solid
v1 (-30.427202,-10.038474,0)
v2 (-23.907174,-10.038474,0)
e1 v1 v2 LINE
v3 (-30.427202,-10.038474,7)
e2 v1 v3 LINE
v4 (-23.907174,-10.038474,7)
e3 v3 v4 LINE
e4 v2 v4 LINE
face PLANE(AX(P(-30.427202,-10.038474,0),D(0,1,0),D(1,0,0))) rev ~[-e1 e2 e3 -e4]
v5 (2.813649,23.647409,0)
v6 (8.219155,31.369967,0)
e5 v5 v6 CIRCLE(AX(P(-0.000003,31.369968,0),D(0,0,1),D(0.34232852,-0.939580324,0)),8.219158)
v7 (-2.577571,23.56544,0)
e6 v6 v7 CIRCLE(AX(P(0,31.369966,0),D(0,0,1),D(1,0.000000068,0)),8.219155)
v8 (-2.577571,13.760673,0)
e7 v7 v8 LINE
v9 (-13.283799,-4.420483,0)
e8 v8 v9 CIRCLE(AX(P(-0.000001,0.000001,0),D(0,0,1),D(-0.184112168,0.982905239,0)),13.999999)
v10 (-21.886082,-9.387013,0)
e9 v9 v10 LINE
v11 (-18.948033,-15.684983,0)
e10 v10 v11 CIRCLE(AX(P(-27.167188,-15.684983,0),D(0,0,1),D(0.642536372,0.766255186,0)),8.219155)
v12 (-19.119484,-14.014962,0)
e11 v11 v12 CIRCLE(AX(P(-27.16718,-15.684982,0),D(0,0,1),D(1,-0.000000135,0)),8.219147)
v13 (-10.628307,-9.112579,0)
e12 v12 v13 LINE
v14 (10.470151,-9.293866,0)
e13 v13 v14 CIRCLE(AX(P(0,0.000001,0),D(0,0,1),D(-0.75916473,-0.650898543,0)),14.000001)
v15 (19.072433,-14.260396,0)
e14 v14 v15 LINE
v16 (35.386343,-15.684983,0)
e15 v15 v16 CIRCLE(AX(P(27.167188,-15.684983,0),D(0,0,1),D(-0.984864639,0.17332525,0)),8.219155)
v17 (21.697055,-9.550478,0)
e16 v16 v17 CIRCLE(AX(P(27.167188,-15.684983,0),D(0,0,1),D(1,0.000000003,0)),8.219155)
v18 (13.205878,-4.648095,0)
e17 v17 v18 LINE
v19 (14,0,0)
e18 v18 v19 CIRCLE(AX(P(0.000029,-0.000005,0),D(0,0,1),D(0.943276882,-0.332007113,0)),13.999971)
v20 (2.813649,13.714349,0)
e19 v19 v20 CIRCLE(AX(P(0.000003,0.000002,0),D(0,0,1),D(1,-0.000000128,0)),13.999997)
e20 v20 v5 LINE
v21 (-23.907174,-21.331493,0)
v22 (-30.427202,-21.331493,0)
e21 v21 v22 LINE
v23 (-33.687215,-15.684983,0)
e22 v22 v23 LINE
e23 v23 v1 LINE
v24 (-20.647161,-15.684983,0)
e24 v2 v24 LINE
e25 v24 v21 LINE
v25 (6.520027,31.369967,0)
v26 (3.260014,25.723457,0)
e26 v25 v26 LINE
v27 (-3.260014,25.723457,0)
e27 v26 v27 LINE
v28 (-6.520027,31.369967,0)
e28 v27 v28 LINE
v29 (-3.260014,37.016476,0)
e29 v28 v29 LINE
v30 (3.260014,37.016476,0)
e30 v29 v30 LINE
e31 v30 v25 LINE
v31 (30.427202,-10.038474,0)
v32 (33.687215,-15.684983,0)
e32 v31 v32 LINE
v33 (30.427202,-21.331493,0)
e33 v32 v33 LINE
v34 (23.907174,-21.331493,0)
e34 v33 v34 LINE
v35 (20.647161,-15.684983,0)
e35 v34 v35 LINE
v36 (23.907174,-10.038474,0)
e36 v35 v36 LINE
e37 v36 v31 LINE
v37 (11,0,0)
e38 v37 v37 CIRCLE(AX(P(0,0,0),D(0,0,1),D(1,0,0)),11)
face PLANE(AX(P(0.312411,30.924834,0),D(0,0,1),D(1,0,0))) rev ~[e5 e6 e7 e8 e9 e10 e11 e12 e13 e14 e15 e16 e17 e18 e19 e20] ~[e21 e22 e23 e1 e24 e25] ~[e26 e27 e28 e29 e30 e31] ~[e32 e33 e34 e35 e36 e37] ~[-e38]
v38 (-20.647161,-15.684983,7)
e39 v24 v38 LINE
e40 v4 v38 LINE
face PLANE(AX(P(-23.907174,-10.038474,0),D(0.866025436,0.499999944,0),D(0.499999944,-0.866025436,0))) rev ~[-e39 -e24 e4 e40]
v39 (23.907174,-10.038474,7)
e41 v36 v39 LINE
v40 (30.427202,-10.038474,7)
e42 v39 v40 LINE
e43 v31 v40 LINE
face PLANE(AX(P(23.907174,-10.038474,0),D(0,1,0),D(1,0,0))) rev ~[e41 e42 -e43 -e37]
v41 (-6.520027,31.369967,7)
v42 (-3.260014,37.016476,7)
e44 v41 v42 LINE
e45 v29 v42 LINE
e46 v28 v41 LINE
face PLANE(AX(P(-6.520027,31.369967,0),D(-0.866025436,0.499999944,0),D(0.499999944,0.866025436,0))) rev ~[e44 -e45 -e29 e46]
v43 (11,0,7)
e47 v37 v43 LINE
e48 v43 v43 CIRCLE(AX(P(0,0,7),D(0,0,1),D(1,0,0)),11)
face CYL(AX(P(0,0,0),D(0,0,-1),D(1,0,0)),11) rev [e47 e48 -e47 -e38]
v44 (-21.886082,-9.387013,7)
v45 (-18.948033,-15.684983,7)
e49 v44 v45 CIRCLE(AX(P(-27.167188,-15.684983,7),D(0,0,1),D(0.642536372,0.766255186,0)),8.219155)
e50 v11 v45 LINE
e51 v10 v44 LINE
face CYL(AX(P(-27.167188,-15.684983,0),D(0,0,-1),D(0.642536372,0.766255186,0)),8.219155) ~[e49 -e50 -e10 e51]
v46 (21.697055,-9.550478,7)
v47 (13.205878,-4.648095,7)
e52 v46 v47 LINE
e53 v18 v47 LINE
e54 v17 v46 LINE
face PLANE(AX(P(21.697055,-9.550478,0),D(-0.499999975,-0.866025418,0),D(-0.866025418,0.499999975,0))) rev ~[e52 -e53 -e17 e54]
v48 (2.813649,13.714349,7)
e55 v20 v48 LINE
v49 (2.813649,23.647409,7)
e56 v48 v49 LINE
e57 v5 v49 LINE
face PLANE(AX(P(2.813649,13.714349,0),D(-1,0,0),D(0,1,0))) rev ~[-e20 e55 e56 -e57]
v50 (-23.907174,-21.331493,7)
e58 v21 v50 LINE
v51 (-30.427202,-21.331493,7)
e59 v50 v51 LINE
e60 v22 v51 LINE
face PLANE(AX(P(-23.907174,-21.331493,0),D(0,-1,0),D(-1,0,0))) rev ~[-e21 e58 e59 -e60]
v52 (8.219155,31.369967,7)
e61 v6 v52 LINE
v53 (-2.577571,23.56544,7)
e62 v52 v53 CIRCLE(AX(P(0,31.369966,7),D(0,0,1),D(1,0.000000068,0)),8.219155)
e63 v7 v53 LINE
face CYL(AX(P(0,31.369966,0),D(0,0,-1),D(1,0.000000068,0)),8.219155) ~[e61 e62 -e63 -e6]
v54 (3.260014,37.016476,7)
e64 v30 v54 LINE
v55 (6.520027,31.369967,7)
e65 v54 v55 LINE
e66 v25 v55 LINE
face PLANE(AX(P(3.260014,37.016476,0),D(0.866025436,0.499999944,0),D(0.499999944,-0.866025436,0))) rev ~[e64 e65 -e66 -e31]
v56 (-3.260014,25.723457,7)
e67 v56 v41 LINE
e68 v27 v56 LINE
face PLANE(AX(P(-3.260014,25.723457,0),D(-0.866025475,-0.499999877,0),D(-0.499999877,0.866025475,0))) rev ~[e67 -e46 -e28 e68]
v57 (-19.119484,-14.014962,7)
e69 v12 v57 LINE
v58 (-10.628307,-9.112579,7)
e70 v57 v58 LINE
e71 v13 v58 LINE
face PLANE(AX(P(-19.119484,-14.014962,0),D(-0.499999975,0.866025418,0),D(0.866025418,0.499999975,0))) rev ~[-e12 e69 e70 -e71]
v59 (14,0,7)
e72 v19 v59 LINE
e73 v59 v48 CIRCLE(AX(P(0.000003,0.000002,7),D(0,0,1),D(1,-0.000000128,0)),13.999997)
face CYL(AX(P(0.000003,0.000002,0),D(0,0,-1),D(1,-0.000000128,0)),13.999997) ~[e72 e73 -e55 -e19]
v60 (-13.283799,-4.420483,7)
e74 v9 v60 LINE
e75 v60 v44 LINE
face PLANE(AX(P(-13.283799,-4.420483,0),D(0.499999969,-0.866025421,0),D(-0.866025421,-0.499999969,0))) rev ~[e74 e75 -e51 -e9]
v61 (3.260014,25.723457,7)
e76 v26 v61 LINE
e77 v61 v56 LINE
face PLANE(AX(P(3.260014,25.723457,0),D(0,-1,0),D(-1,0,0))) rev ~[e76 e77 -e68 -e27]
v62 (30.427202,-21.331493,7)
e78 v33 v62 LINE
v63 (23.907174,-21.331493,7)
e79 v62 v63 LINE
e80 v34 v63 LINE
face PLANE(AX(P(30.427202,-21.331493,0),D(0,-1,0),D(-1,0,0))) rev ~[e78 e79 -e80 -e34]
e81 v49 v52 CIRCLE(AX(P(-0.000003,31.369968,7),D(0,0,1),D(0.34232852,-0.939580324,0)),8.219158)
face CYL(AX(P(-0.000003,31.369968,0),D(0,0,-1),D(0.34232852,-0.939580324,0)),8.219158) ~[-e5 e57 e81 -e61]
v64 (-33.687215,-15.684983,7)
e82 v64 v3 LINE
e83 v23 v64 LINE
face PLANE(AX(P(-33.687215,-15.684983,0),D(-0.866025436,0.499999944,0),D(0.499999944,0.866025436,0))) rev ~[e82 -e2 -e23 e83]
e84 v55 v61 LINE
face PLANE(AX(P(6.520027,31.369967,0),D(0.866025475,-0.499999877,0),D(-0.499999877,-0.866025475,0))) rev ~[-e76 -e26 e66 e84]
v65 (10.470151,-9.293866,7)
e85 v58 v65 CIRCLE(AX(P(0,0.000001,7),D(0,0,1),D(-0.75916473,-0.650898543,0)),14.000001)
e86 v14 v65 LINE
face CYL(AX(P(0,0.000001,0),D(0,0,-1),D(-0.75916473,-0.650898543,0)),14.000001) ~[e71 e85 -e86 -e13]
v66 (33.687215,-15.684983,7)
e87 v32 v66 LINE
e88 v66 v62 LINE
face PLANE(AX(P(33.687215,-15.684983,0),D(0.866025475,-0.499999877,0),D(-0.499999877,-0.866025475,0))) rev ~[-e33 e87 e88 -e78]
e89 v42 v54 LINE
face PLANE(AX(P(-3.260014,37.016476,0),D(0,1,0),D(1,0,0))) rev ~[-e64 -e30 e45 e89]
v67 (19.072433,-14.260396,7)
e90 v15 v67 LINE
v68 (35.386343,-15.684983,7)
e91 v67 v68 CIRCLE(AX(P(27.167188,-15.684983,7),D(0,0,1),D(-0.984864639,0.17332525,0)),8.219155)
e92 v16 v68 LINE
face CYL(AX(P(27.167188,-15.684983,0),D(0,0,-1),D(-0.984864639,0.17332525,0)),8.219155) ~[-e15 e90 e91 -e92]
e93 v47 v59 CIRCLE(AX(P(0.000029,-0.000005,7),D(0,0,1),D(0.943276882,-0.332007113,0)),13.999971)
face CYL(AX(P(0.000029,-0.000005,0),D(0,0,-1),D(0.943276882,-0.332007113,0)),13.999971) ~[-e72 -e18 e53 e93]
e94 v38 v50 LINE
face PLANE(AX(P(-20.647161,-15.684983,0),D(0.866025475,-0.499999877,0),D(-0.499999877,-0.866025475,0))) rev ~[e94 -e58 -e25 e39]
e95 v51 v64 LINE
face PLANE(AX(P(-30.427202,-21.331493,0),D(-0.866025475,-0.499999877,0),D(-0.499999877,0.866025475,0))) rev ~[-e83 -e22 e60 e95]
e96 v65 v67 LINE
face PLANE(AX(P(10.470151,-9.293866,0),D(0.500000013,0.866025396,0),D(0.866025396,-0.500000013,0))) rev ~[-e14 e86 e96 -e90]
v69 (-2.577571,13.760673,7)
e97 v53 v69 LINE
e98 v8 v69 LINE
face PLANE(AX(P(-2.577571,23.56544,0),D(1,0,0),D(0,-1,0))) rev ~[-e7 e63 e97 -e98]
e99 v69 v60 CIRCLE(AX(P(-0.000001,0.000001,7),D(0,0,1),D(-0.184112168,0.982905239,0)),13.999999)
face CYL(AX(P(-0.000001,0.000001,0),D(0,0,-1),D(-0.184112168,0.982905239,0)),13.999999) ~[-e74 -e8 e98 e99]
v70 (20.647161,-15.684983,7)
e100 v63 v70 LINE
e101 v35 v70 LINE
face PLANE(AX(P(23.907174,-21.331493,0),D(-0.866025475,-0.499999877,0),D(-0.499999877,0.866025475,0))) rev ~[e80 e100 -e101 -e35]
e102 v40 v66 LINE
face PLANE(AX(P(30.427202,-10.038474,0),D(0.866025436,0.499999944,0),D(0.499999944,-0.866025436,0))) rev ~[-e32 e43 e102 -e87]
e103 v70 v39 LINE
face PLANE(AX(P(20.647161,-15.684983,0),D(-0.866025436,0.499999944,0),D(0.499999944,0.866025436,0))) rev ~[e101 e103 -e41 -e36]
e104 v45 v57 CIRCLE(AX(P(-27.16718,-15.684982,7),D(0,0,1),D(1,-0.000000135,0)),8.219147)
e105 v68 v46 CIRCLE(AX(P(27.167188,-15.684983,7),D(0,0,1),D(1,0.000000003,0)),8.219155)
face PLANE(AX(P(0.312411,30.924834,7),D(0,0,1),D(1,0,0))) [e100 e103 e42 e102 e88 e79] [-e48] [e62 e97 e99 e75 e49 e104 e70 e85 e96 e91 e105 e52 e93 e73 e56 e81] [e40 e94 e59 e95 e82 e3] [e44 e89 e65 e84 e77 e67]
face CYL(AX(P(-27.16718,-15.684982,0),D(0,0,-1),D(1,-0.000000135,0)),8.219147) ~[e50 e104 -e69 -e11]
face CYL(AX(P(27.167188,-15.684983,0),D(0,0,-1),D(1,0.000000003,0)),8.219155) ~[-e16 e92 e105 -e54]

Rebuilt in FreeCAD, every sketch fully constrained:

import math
import FreeCAD as App
import Part
import Sketcher

V = App.Vector
Q = App.Units.Quantity

doc = App.newDocument("Part")
body = doc.addObject("PartDesign::Body", "Body")

# Sketch on XY plane
sketch1 = body.newObject("Sketcher::SketchObject", "Sketch")
sketch1.AttachmentSupport = (doc.getObject("XY_Plane"), [""])
sketch1.MapMode = "FlatFace"
sketch1.addGeometry([
    Part.ArcOfCircle(Part.Circle(V(0, 31.4, 0), V(0, 0, 1), 8.2), math.radians(0), math.radians(252)),  # 0
    Part.LineSegment(V(-2.6, 23.6, 0), V(-2.6, 13.8, 0)),  # 1
    Part.ArcOfCircle(Part.Circle(V(0, 0, 0), V(0, 0, 1), 14), math.radians(101), math.radians(198)),  # 2
    Part.LineSegment(V(-13.3, -4.4, 0), V(-21.9, -9.4, 0)),  # 3
    Part.ArcOfCircle(Part.Circle(V(-27.2, -15.7, 0), V(0, 0, 1), 8.2), math.radians(50), math.radians(360)),  # 4
    Part.ArcOfCircle(Part.Circle(V(-27.2, -15.7, 0), V(0, 0, 1), 8.2), math.radians(0), math.radians(11.72)),  # 5
    Part.LineSegment(V(-19.1, -14, 0), V(-10.6, -9.1, 0)),  # 6
    Part.ArcOfCircle(Part.Circle(V(0, 0, 0), V(0, 0, 1), 14), math.radians(-139), math.radians(-42)),  # 7
    Part.LineSegment(V(10.5, -9.3, 0), V(19.1, -14.3, 0)),  # 8
    Part.ArcOfCircle(Part.Circle(V(27.2, -15.7, 0), V(0, 0, 1), 8.2), math.radians(170), math.radians(360)),  # 9
    Part.ArcOfCircle(Part.Circle(V(27.2, -15.7, 0), V(0, 0, 1), 8.2), math.radians(0), math.radians(132)),  # 10
    Part.LineSegment(V(21.7, -9.6, 0), V(13.2, -4.6, 0)),  # 11
    Part.ArcOfCircle(Part.Circle(V(0, 0, 0), V(0, 0, 1), 14), math.radians(-19.39), math.radians(0)),  # 12
    Part.ArcOfCircle(Part.Circle(V(0, 0, 0), V(0, 0, 1), 14), math.radians(0), math.radians(78)),  # 13
    Part.LineSegment(V(2.8, 13.7, 0), V(2.8, 23.6, 0)),  # 14
    Part.ArcOfCircle(Part.Circle(V(0, 31.4, 0), V(0, 0, 1), 8.2), math.radians(-70), math.radians(0)),  # 15
    Part.LineSegment(V(-33.7, -15.7, 0), V(-30.4, -10, 0)),  # 16
    Part.LineSegment(V(-30.4, -10, 0), V(-23.9, -10, 0)),  # 17
    Part.LineSegment(V(-23.9, -10, 0), V(-20.6, -15.7, 0)),  # 18
    Part.LineSegment(V(-20.6, -15.7, 0), V(-23.9, -21.3, 0)),  # 19
    Part.LineSegment(V(-23.9, -21.3, 0), V(-30.4, -21.3, 0)),  # 20
    Part.LineSegment(V(-30.4, -21.3, 0), V(-33.7, -15.7, 0)),  # 21
    Part.LineSegment(V(30.4, -21.3, 0), V(23.9, -21.3, 0)),  # 22
    Part.LineSegment(V(23.9, -21.3, 0), V(20.6, -15.7, 0)),  # 23
    Part.LineSegment(V(20.6, -15.7, 0), V(23.9, -10, 0)),  # 24
    Part.LineSegment(V(23.9, -10, 0), V(30.4, -10, 0)),  # 25
    Part.LineSegment(V(30.4, -10, 0), V(33.7, -15.7, 0)),  # 26
    Part.LineSegment(V(33.7, -15.7, 0), V(30.4, -21.3, 0)),  # 27
    Part.Circle(V(0, 0, 0), V(0, 0, 1), 11),  # 28
    Part.LineSegment(V(3.3, 37, 0), V(6.5, 31.4, 0)),  # 29
    Part.LineSegment(V(6.5, 31.4, 0), V(3.3, 25.7, 0)),  # 30
    Part.LineSegment(V(3.3, 25.7, 0), V(-3.3, 25.7, 0)),  # 31
    Part.LineSegment(V(-3.3, 25.7, 0), V(-6.5, 31.4, 0)),  # 32
    Part.LineSegment(V(-6.5, 31.4, 0), V(-3.3, 37, 0)),  # 33
    Part.LineSegment(V(-3.3, 37, 0), V(3.3, 37, 0)),  # 34
], False)
sketch1.addConstraint([
    Sketcher.Constraint("Coincident", 0, 2, 1, 1),
    Sketcher.Constraint("Coincident", 1, 2, 2, 1),
    Sketcher.Constraint("Coincident", 2, 2, 3, 1),
    Sketcher.Constraint("Coincident", 3, 2, 4, 1),
    Sketcher.Constraint("Tangent", 4, 2, 5, 1),
    Sketcher.Constraint("Coincident", 5, 2, 6, 1),
    Sketcher.Constraint("Coincident", 6, 2, 7, 1),
    Sketcher.Constraint("Coincident", 7, 2, 8, 1),
    Sketcher.Constraint("Coincident", 8, 2, 9, 1),
    Sketcher.Constraint("Tangent", 9, 2, 10, 1),
    Sketcher.Constraint("Coincident", 10, 2, 11, 1),
    Sketcher.Constraint("Coincident", 11, 2, 12, 1),
    Sketcher.Constraint("Tangent", 12, 2, 13, 1),
    Sketcher.Constraint("Coincident", 13, 2, 14, 1),
    Sketcher.Constraint("Coincident", 14, 2, 15, 1),
    Sketcher.Constraint("Tangent", 15, 2, 0, 1),
    Sketcher.Constraint("Coincident", 16, 2, 17, 1),
    Sketcher.Constraint("Coincident", 17, 2, 18, 1),
    Sketcher.Constraint("Coincident", 18, 2, 19, 1),
    Sketcher.Constraint("Coincident", 19, 2, 20, 1),
    Sketcher.Constraint("Coincident", 20, 2, 21, 1),
    Sketcher.Constraint("Coincident", 21, 2, 16, 1),
    Sketcher.Constraint("Coincident", 22, 2, 23, 1),
    Sketcher.Constraint("Coincident", 23, 2, 24, 1),
    Sketcher.Constraint("Coincident", 24, 2, 25, 1),
    Sketcher.Constraint("Coincident", 25, 2, 26, 1),
    Sketcher.Constraint("Coincident", 26, 2, 27, 1),
    Sketcher.Constraint("Coincident", 27, 2, 22, 1),
    Sketcher.Constraint("Coincident", 29, 2, 30, 1),
    Sketcher.Constraint("Coincident", 30, 2, 31, 1),
    Sketcher.Constraint("Coincident", 31, 2, 32, 1),
    Sketcher.Constraint("Coincident", 32, 2, 33, 1),
    Sketcher.Constraint("Coincident", 33, 2, 34, 1),
    Sketcher.Constraint("Coincident", 34, 2, 29, 1),
    Sketcher.Constraint("Vertical", 1),
    Sketcher.Constraint("Vertical", 14),
    Sketcher.Constraint("Horizontal", 17),
    Sketcher.Constraint("Horizontal", 20),
    Sketcher.Constraint("Horizontal", 22),
    Sketcher.Constraint("Horizontal", 25),
    Sketcher.Constraint("Horizontal", 31),
    Sketcher.Constraint("Horizontal", 34),
    Sketcher.Constraint("Coincident", 2, 3, -1, 1),
    Sketcher.Constraint("Coincident", 7, 3, -1, 1),
    Sketcher.Constraint("Coincident", 13, 3, -1, 1),
    Sketcher.Constraint("Coincident", 28, 3, -1, 1),
    Sketcher.Constraint("Equal", 0, 4),
    Sketcher.Constraint("Equal", 4, 9),
    Sketcher.Constraint("Equal", 9, 10),
    Sketcher.Constraint("Equal", 2, 13),
    Sketcher.Constraint("Symmetric", 4, 3, 9, 3, -2),
    Sketcher.Constraint("Symmetric", 19, 2, 22, 2, -2),
    Sketcher.Constraint("Symmetric", 18, 2, 23, 2, -2),
    Sketcher.Constraint("Symmetric", 17, 2, 24, 2, -2),
    Sketcher.Constraint("Symmetric", 21, 2, 26, 2, -2),
    Sketcher.Constraint("Symmetric", 29, 2, 32, 2, -2),
    Sketcher.Constraint("PointOnObject", 0, 3, -2),
    Sketcher.Constraint("PointOnObject", 12, 2, -1),
    Sketcher.Constraint("Parallel", 3, 6),
    Sketcher.Constraint("Parallel", 8, 11),
    Sketcher.Constraint("Perpendicular", 11, 16),
    Sketcher.Constraint("Perpendicular", 6, 18),
    Sketcher.Constraint("Parallel", 16, 19),
    Sketcher.Constraint("Parallel", 18, 21),
    Sketcher.Constraint("Parallel", 21, 23),
    Sketcher.Constraint("Parallel", 23, 26),
    Sketcher.Constraint("Parallel", 24, 27),
    Sketcher.Constraint("Parallel", 26, 29),
    Sketcher.Constraint("Parallel", 27, 30),
    Sketcher.Constraint("Parallel", 29, 32),
    Sketcher.Constraint("Parallel", 30, 33),
    Sketcher.Constraint("Horizontal", 10, 3, 4, 2),
    Sketcher.Constraint("Horizontal", 4, 2, 9, 2),
    Sketcher.Constraint("Horizontal", 0, 3, 15, 2),
    Sketcher.Constraint("Horizontal", 9, 2, 18, 2),
    Sketcher.Constraint("Horizontal", 18, 2, 21, 2),
    Sketcher.Constraint("Horizontal", 15, 2, 29, 2),
    Sketcher.Constraint("Vertical", 17, 2, 19, 2),
    Sketcher.Constraint("Vertical", 31, 2, 33, 2),
    Sketcher.Constraint("Equal", 25, 31),
    Sketcher.Constraint("Equal", 3, 8),
    Sketcher.Constraint("Equal", 6, 11),
    Sketcher.Constraint("Equal", 27, 29),
    Sketcher.Constraint("Diameter", 28, Q("22 mm")),
    Sketcher.Constraint("Radius", 2, Q("13.999999 mm")),
    Sketcher.Constraint("Radius", 7, Q("14.000001 mm")),
    Sketcher.Constraint("Angle", 3, Q("-150.000002 deg")),
    Sketcher.Constraint("Radius", 12, Q("13.999971 mm")),
    Sketcher.Constraint("Radius", 15, Q("8.219158 mm")),
    Sketcher.Constraint("Radius", 0, Q("8.219155 mm")),
    Sketcher.Constraint("Radius", 5, Q("8.219147 mm")),
    Sketcher.Constraint("DistanceY", 14, 1, 14, 2, Q("9.93306 mm")),
    Sketcher.Constraint("DistanceX", 2, 2, -1, 1, Q("13.283799 mm")),
    Sketcher.Constraint("DistanceY", 4, 2, 2, 2, Q("11.2645 mm")),
    Sketcher.Constraint("DistanceY", 8, 2, 11, 2, Q("9.612301 mm")),
    Sketcher.Constraint("Distance", 3, Q("9.933061 mm")),
    Sketcher.Constraint("DistanceX", 17, 1, 17, 2, Q("6.520028 mm")),
    Sketcher.Constraint("DistanceY", 1, 2, 1, 1, Q("9.804767 mm")),
    Sketcher.Constraint("DistanceY", -1, 1, 15, 3, Q("31.369968 mm")),
    Sketcher.Constraint("DistanceX", 18, 2, -1, 1, Q("20.647161 mm")),
    Sketcher.Constraint("DistanceY", 4, 3, 16, 2, Q("5.646509 mm")),
])
pad1 = body.newObject("PartDesign::Pad", "Pad")
pad1.Profile = sketch1
pad1.Length = 7

doc.recompute()
